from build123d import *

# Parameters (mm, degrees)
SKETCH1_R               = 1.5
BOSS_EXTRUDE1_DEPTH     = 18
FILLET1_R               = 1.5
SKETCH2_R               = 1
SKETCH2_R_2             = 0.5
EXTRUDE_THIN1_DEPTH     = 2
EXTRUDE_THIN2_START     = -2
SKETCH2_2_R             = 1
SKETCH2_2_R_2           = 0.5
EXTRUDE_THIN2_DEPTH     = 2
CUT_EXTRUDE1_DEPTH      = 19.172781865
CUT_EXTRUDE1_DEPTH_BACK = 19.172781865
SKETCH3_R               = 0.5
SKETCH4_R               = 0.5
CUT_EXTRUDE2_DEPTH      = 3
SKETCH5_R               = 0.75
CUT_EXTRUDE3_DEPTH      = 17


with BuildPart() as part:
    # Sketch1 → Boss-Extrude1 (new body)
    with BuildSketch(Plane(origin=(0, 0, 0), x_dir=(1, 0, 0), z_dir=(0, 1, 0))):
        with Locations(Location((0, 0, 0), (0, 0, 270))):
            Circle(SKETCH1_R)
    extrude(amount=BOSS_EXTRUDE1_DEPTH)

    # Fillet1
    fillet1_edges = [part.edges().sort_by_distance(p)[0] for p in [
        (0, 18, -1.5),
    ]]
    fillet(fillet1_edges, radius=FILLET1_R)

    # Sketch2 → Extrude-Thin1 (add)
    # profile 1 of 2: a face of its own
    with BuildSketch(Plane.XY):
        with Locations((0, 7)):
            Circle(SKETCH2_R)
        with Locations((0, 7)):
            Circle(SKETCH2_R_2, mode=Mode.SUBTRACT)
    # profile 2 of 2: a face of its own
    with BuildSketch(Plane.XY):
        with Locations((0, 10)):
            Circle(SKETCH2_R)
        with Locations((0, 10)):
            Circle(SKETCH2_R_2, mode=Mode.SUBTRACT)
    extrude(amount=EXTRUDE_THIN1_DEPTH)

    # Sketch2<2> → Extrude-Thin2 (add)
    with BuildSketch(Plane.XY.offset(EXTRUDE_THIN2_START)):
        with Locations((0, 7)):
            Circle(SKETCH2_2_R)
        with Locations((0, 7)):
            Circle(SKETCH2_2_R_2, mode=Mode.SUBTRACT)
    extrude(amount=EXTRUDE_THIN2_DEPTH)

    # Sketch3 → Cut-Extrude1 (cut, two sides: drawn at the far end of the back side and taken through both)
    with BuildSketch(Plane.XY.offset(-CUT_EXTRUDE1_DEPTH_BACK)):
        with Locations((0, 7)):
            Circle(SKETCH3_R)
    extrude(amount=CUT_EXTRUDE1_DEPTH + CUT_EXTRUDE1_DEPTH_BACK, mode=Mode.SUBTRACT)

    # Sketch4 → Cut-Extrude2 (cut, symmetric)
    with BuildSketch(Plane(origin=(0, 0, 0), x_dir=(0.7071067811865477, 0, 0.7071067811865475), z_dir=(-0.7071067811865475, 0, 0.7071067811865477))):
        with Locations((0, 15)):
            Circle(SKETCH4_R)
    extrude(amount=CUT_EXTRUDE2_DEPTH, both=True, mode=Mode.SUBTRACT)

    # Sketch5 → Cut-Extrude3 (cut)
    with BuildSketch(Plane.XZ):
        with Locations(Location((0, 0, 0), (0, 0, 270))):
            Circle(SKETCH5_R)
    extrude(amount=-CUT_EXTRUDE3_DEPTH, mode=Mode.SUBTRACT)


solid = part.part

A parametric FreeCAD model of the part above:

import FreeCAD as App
import Part
import Sketcher
Q = App.Units.Quantity


def edges_at(feature, points):
    """Names of the edges that pass closest to the given points."""
    edges = feature.Shape.Edges
    near = lambda p: min(range(len(edges)), key=lambda i: edges[i].distToShape(Part.Vertex(*p))[0])
    return sorted({f"Edge{near(p) + 1}" for p in points})

doc = App.newDocument("Part")
params = doc.addObject("Spreadsheet::Sheet", "Params")
for row, (alias, value) in enumerate([
    ("sketch1_diameter", "3 mm"),
    ("pad1_length", "18 mm"),
    ("fillet_radius", "1.5 mm"),
    ("sketch2_diameter", "2 mm"),
    ("sketch2_diameter2", "1 mm"),
    ("pad2_length", "2 mm"),
    ("sketch3_diameter", "2 mm"),
    ("sketch3_diameter2", "1 mm"),
    ("pad3_length", "2 mm"),
    ("sketch4_diameter", "1 mm"),
    ("sketch5_diameter", "1 mm"),
    ("pocket2_length", "6 mm"),
    ("sketch6_diameter", "1.5 mm"),
    ("pocket3_length", "17 mm"),
], start=1):
    params.set(f"A{row}", alias)
    params.set(f"B{row}", "=" + value)
    params.setAlias(f"B{row}", alias)

body = doc.addObject("PartDesign::Body", "Body")

# Sketch on XZ plane
sketch1 = body.newObject("Sketcher::SketchObject", "Sketch")
sketch1.AttachmentSupport = (doc.getObject("XZ_Plane"), [""])
sketch1.MapMode = "FlatFace"
sketch1.addGeometry(Part.Circle(App.Vector(0, 0, 0), App.Vector(0, 0, 1), 1.5), False)
sketch1.addConstraint([
    Sketcher.Constraint("Coincident", 0, 3, -1, 1),
    Sketcher.Constraint("Diameter", 0, Q("3 mm")),
])
sketch1.setExpression("Constraints[1]", "Params.sketch1_diameter")
pad1 = body.newObject("PartDesign::Pad", "Pad")
pad1.Profile = sketch1
pad1.setExpression("Length", "Params.pad1_length")
pad1.Reversed = True
doc.recompute()

fillet = body.newObject("PartDesign::Fillet", "Fillet")
fillet.Base = (pad1, edges_at(pad1, [(0, 18, -1.5)]))
fillet.setExpression("Radius", "Params.fillet_radius")

# Sketch on XY plane
sketch2 = body.newObject("Sketcher::SketchObject", "Sketch001")
sketch2.AttachmentSupport = (doc.getObject("XY_Plane"), [""])
sketch2.MapMode = "FlatFace"
sketch2.addGeometry([
    Part.Circle(App.Vector(0, 7, 0), App.Vector(0, 0, 1), 1),
    Part.Circle(App.Vector(0, 7, 0), App.Vector(0, 0, 1), 0.5),
    Part.Circle(App.Vector(0, 10, 0), App.Vector(0, 0, 1), 1),
    Part.Circle(App.Vector(0, 10, 0), App.Vector(0, 0, 1), 0.5),
], False)
sketch2.addConstraint([
    Sketcher.Constraint("Coincident", 1, 3, 0, 3),
    Sketcher.Constraint("Coincident", 3, 3, 2, 3),
    Sketcher.Constraint("Equal", 0, 2),
    Sketcher.Constraint("Equal", 1, 3),
    Sketcher.Constraint("PointOnObject", 0, 3, -2),
    Sketcher.Constraint("PointOnObject", 2, 3, -2),
    Sketcher.Constraint("Diameter", 0, Q("2 mm")),
    Sketcher.Constraint("Diameter", 1, Q("1 mm")),
    Sketcher.Constraint("DistanceY", -1, 1, 0, 3, Q("7 mm")),
    Sketcher.Constraint("DistanceY", -1, 1, 2, 3, Q("10 mm")),
])
sketch2.setExpression("Constraints[6]", "Params.sketch2_diameter")
sketch2.setExpression("Constraints[7]", "Params.sketch2_diameter2")
pad2 = body.newObject("PartDesign::Pad", "Pad001")
pad2.Profile = sketch2
pad2.setExpression("Length", "Params.pad2_length")

# Sketch on XY plane
sketch3 = body.newObject("Sketcher::SketchObject", "Sketch002")
sketch3.AttachmentSupport = (doc.getObject("XY_Plane"), [""])
sketch3.MapMode = "FlatFace"
sketch3.AttachmentOffset = App.Placement(App.Vector(0, 0, -2), App.Rotation())
sketch3.addGeometry([
    Part.Circle(App.Vector(0, 7, 0), App.Vector(0, 0, 1), 1),
    Part.Circle(App.Vector(0, 7, 0), App.Vector(0, 0, 1), 0.5),
], False)
sketch3.addConstraint([
    Sketcher.Constraint("Coincident", 1, 3, 0, 3),
    Sketcher.Constraint("PointOnObject", 0, 3, -2),
    Sketcher.Constraint("Diameter", 0, Q("2 mm")),
    Sketcher.Constraint("Diameter", 1, Q("1 mm")),
    Sketcher.Constraint("DistanceY", -1, 1, 0, 3, Q("7 mm")),
])
sketch3.setExpression("Constraints[2]", "Params.sketch3_diameter")
sketch3.setExpression("Constraints[3]", "Params.sketch3_diameter2")
pad3 = body.newObject("PartDesign::Pad", "Pad002")
pad3.Profile = sketch3
pad3.setExpression("Length", "Params.pad3_length")

# Sketch on XY plane
sketch4 = body.newObject("Sketcher::SketchObject", "Sketch003")
sketch4.AttachmentSupport = (doc.getObject("XY_Plane"), [""])
sketch4.MapMode = "FlatFace"
sketch4.addGeometry(Part.Circle(App.Vector(0, 7, 0), App.Vector(0, 0, 1), 0.5), False)
sketch4.addConstraint([
    Sketcher.Constraint("PointOnObject", 0, 3, -2),
    Sketcher.Constraint("Diameter", 0, Q("1 mm")),
    Sketcher.Constraint("DistanceY", -1, 1, 0, 3, Q("7 mm")),
])
sketch4.setExpression("Constraints[1]", "Params.sketch4_diameter")
pocket1 = body.newObject("PartDesign::Pocket", "Pocket")
pocket1.Profile = sketch4
pocket1.Type = "ThroughAll"
pocket1.Midplane = True

# Sketch on an angled plane
sketch5 = body.newObject("Sketcher::SketchObject", "Sketch004")
sketch5.Placement = App.Placement(App.Vector(0, 0, 0), App.Rotation(App.Vector(0.707106781, 0, 0.707106781), App.Vector(0, 0.999999999, 0), App.Vector(-0.707106781, 0, 0.707106781), "ZXY"))
sketch5.addGeometry(Part.Circle(App.Vector(0, 15, 0), App.Vector(0, 0, 1), 0.5), False)
sketch5.addConstraint([
    Sketcher.Constraint("PointOnObject", 0, 3, -2),
    Sketcher.Constraint("Diameter", 0, Q("1 mm")),
    Sketcher.Constraint("DistanceY", -1, 1, 0, 3, Q("15 mm")),
])
sketch5.setExpression("Constraints[1]", "Params.sketch5_diameter")
pocket2 = body.newObject("PartDesign::Pocket", "Pocket001")
pocket2.Profile = sketch5
pocket2.setExpression("Length", "Params.pocket2_length")
pocket2.Midplane = True

# Sketch on XZ plane
sketch6 = body.newObject("Sketcher::SketchObject", "Sketch005")
sketch6.AttachmentSupport = (doc.getObject("XZ_Plane"), [""])
sketch6.MapMode = "FlatFace"
sketch6.addGeometry(Part.Circle(App.Vector(0, 0, 0), App.Vector(0, 0, 1), 0.8), False)
sketch6.addConstraint([
    Sketcher.Constraint("Coincident", 0, 3, -1, 1),
    Sketcher.Constraint("Diameter", 0, Q("1.5 mm")),
])
sketch6.setExpression("Constraints[1]", "Params.sketch6_diameter")
pocket3 = body.newObject("PartDesign::Pocket", "Pocket002")
pocket3.Profile = sketch6
pocket3.setExpression("Length", "Params.pocket3_length")

doc.recompute()
